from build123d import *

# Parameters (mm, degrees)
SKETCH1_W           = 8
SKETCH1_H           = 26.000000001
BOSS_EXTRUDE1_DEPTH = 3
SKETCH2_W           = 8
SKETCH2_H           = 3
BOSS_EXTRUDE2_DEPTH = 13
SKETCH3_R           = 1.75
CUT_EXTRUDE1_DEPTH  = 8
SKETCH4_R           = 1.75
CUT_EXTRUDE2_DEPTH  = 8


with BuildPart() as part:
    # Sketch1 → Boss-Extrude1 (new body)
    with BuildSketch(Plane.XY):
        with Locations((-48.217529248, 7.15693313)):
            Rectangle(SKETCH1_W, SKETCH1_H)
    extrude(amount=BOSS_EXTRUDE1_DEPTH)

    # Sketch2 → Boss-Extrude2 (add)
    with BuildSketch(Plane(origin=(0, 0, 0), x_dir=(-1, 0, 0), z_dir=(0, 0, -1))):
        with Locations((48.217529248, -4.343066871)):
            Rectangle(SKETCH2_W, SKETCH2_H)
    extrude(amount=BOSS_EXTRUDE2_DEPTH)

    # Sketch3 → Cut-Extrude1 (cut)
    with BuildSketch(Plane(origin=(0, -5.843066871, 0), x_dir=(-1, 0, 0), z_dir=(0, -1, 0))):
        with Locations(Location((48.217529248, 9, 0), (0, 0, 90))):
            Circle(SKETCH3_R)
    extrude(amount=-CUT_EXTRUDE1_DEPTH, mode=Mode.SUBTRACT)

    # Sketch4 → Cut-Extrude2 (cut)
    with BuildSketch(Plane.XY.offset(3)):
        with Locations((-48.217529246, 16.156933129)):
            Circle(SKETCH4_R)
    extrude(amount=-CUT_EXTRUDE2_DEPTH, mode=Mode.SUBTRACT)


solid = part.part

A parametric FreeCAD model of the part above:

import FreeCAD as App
import Part
import Sketcher

V = App.Vector


def add_polygon(sketch, points):
    """Adds a closed chain of lines whose ends are joined by coincident constraints."""
    first, n = sketch.GeometryCount, len(points)
    for a, b in zip(points, points[1:] + points[:1]):
        sketch.addGeometry(Part.LineSegment(App.Vector(*a, 0), App.Vector(*b, 0)), False)
    for i in range(n):
        sketch.addConstraint(Sketcher.Constraint("Coincident", first + i, 2, first + (i + 1) % n, 1))

doc = App.newDocument("Part")
body = doc.addObject("PartDesign::Body", "Body")

sketch1 = body.newObject("Sketcher::SketchObject", "Sketch")
sketch1.AttachmentSupport = (doc.getObject("XY_Plane"), [""])
sketch1.MapMode = "FlatFace"
add_polygon(sketch1, [(-52, 20), (-52, -6), (-44, -6), (-44, 20)])
sketch1.addConstraint([
    Sketcher.Constraint("Vertical", 0),
    Sketcher.Constraint("Horizontal", 1),
    Sketcher.Constraint("Vertical", 2),
    Sketcher.Constraint("Horizontal", 3),
    Sketcher.Constraint("DistanceX", 1, 1, 1, 2, 8.0),
    Sketcher.Constraint("DistanceY", 0, 2, 0, 1, 26.0),
    Sketcher.Constraint("DistanceX", 0, 2, -1, 1, 52.217529),
    Sketcher.Constraint("DistanceY", 0, 2, -1, 1, 5.843067),
])
pad1 = body.newObject("PartDesign::Pad", "Pad")
pad1.Profile = sketch1
pad1.Length = 3

sketch2 = body.newObject("Sketcher::SketchObject", "Sketch001")
sketch2.AttachmentSupport = (doc.getObject("XY_Plane"), [""])
sketch2.MapMode = "FlatFace"
add_polygon(sketch2, [(-44.2, -2.8), (-44.2, -5.8), (-52.2, -5.8), (-52.2, -2.8)])
sketch2.addConstraint([
    Sketcher.Constraint("Vertical", 0),
    Sketcher.Constraint("Horizontal", 1),
    Sketcher.Constraint("Vertical", 2),
    Sketcher.Constraint("Horizontal", 3),
    Sketcher.Constraint("DistanceX", 1, 2, 1, 1, 8.0),
    Sketcher.Constraint("DistanceY", 0, 2, 0, 1, 3.0),
    Sketcher.Constraint("DistanceX", 0, 2, -1, 1, 44.217529),
    Sketcher.Constraint("DistanceY", 0, 2, -1, 1, 5.843067),
])
pad2 = body.newObject("PartDesign::Pad", "Pad001")
pad2.Profile = sketch2
pad2.Length = 13
pad2.Reversed = True

sketch3 = body.newObject("Sketcher::SketchObject", "Sketch002")
sketch3.AttachmentSupport = (doc.getObject("XZ_Plane"), [""])
sketch3.MapMode = "FlatFace"
sketch3.AttachmentOffset = App.Placement(V(0, 0, 5.843067), App.Rotation())
sketch3.addGeometry(Part.Circle(V(-48.2, -9, 0), V(0, 0, 1), 1.8), False)
sketch3.addConstraint([
    Sketcher.Constraint("Diameter", 0, 3.5),
    Sketcher.Constraint("DistanceY", 0, 3, -1, 1, 9.0),
    Sketcher.Constraint("DistanceX", 0, 3, -1, 1, 48.217529),
])
pocket1 = body.newObject("PartDesign::Pocket", "Pocket")
pocket1.Profile = sketch3
pocket1.Length = 8

sketch4 = body.newObject("Sketcher::SketchObject", "Sketch003")
sketch4.AttachmentSupport = (doc.getObject("XY_Plane"), [""])
sketch4.MapMode = "FlatFace"
sketch4.AttachmentOffset = App.Placement(V(0, 0, 3), App.Rotation())
sketch4.addGeometry(Part.Circle(V(-48.2, 16.2, 0), V(0, 0, 1), 1.8), False)
sketch4.addConstraint([
    Sketcher.Constraint("Diameter", 0, 3.5),
    Sketcher.Constraint("DistanceX", 0, 3, -1, 1, 48.217529),
    Sketcher.Constraint("DistanceY", -1, 1, 0, 3, 16.156933),
])
pocket2 = body.newObject("PartDesign::Pocket", "Pocket001")
pocket2.Profile = sketch4
pocket2.Length = 8

doc.recompute()
